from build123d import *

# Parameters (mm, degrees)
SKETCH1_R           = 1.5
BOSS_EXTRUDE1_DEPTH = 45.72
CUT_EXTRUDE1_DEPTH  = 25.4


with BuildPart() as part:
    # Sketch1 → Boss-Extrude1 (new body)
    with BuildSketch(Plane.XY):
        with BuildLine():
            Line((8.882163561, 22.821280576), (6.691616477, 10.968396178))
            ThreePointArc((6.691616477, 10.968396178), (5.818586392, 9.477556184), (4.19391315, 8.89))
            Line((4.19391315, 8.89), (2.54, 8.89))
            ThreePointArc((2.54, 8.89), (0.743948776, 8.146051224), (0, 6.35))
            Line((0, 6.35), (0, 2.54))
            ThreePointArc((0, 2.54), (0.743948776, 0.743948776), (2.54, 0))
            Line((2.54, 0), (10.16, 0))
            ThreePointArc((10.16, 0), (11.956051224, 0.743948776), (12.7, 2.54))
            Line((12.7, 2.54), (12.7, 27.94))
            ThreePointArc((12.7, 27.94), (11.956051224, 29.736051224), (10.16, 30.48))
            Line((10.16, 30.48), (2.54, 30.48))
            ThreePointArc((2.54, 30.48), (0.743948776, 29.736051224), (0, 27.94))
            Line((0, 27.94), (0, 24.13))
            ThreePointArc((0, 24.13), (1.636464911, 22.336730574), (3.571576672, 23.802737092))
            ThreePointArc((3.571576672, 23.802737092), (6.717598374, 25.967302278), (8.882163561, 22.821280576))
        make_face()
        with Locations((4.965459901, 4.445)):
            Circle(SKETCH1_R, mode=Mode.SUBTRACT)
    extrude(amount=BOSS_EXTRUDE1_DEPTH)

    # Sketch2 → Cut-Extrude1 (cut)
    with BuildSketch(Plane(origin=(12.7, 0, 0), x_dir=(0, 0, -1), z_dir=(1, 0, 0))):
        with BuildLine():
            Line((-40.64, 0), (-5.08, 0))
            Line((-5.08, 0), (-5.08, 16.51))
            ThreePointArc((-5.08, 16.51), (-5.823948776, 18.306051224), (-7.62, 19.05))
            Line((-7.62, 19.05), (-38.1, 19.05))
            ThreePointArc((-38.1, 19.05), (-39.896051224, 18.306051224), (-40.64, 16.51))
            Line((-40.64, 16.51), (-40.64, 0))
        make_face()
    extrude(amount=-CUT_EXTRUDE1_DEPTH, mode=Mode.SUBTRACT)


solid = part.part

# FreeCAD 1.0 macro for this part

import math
import FreeCAD as App
import Part
import Sketcher

V = App.Vector
Q = App.Units.Quantity

doc = App.newDocument("Part")
body = doc.addObject("PartDesign::Body", "Body")

# Sketch on XY plane
sketch1 = body.newObject("Sketcher::SketchObject", "Sketch")
sketch1.AttachmentSupport = (doc.getObject("XY_Plane"), [""])
sketch1.MapMode = "FlatFace"
sketch1.addGeometry([
    Part.LineSegment(V(8.9, 22.8, 0), V(6.7, 11, 0)),  # 0
    Part.ArcOfCircle(Part.Circle(V(4.2, 11.4, 0), V(0, 0, 1), 2.5), math.radians(-90), math.radians(-10)),  # 1
    Part.LineSegment(V(4.2, 8.9, 0), V(2.5, 8.9, 0)),  # 2
    Part.ArcOfCircle(Part.Circle(V(2.5, 6.3, 0), V(0, 0, 1), 2.5), math.radians(90), math.radians(180)),  # 3
    Part.LineSegment(V(0, 6.3, 0), V(0, 2.5, 0)),  # 4
    Part.ArcOfCircle(Part.Circle(V(2.5, 2.5, 0), V(0, 0, 1), 2.5), math.radians(-180), math.radians(-90)),  # 5
    Part.LineSegment(V(2.5, 0, 0), V(10.2, 0, 0)),  # 6
    Part.ArcOfCircle(Part.Circle(V(10.2, 2.5, 0), V(0, 0, 1), 2.5), math.radians(-90), math.radians(0)),  # 7
    Part.LineSegment(V(12.7, 2.5, 0), V(12.7, 27.9, 0)),  # 8
    Part.ArcOfCircle(Part.Circle(V(10.2, 27.9, 0), V(0, 0, 1), 2.5), math.radians(0), math.radians(90)),  # 9
    Part.LineSegment(V(10.2, 30.5, 0), V(2.5, 30.5, 0)),  # 10
    Part.ArcOfCircle(Part.Circle(V(2.5, 27.9, 0), V(0, 0, 1), 2.5), math.radians(90), math.radians(180)),  # 11
    Part.LineSegment(V(0, 27.9, 0), V(0, 24.1, 0)),  # 12
    Part.ArcOfCircle(Part.Circle(V(1.8, 24.1, 0), V(0, 0, 1), 1.8), math.radians(180), math.radians(350)),  # 13
    Part.ArcOfCircle(Part.Circle(V(6.2, 23.3, 0), V(0, 0, 1), 2.7), math.radians(-10), math.radians(170)),  # 14
    Part.Circle(V(5, 4.4, 0), V(0, 0, 1), 1.5),  # 15
], False)
sketch1.addConstraint([
    Sketcher.Constraint("Tangent", 0, 2, 1, 2),
    Sketcher.Constraint("Tangent", 1, 1, 2, 1),
    Sketcher.Constraint("Tangent", 2, 2, 3, 1),
    Sketcher.Constraint("Tangent", 3, 2, 4, 1),
    Sketcher.Constraint("Tangent", 4, 2, 5, 1),
    Sketcher.Constraint("Tangent", 5, 2, 6, 1),
    Sketcher.Constraint("Tangent", 6, 2, 7, 1),
    Sketcher.Constraint("Tangent", 7, 2, 8, 1),
    Sketcher.Constraint("Tangent", 8, 2, 9, 1),
    Sketcher.Constraint("Tangent", 9, 2, 10, 1),
    Sketcher.Constraint("Tangent", 10, 2, 11, 1),
    Sketcher.Constraint("Tangent", 11, 2, 12, 1),
    Sketcher.Constraint("Tangent", 12, 2, 13, 1),
    Sketcher.Constraint("Tangent", 13, 2, 14, 2),
    Sketcher.Constraint("Tangent", 14, 1, 0, 1),
    Sketcher.Constraint("Horizontal", 2),
    Sketcher.Constraint("Vertical", 4),
    Sketcher.Constraint("Horizontal", 6),
    Sketcher.Constraint("Vertical", 8),
    Sketcher.Constraint("Horizontal", 10),
    Sketcher.Constraint("Vertical", 12),
    Sketcher.Constraint("Equal", 1, 3),
    Sketcher.Constraint("Equal", 3, 5),
    Sketcher.Constraint("Equal", 5, 7),
    Sketcher.Constraint("Equal", 7, 9),
    Sketcher.Constraint("Equal", 9, 11),
    Sketcher.Constraint("PointOnObject", 3, 2, -2),
    Sketcher.Constraint("PointOnObject", 5, 2, -1),
    Sketcher.Constraint("PointOnObject", 11, 2, -2),
    Sketcher.Constraint("Equal", 4, 12),
    Sketcher.Constraint("Radius", 1, Q("0.1 in")),
    Sketcher.Constraint("DistanceY", 8, 1, 8, 2, Q("1 in")),
    Sketcher.Constraint("DistanceX", 6, 1, 6, 2, Q("0.3 in")),
    Sketcher.Constraint("DistanceY", 4, 2, 4, 1, Q("0.15 in")),
    Sketcher.Constraint("Diameter", 15, 3.0),
    Sketcher.Constraint("DistanceY", -1, 1, 15, 3, Q("0.175 in")),
    Sketcher.Constraint("Radius", 13, 1.800782),
    Sketcher.Constraint("Radius", 14, 2.700259),
    Sketcher.Constraint("DistanceX", 2, 2, 2, 1, 1.653913),
    Sketcher.Constraint("DistanceX", -1, 1, 14, 3, 6.22687),
    Sketcher.Constraint("DistanceX", -1, 1, 15, 3, 4.96546),
])
pad1 = body.newObject("PartDesign::Pad", "Pad")
pad1.Profile = sketch1
pad1.Length = Q("1.8 in")

# Sketch on YZ plane
sketch2 = body.newObject("Sketcher::SketchObject", "Sketch001")
sketch2.AttachmentSupport = (doc.getObject("YZ_Plane"), [""])
sketch2.MapMode = "FlatFace"
sketch2.AttachmentOffset = App.Placement(V(0, 0, 0.5 * 25.4), App.Rotation())
sketch2.addGeometry([
    Part.LineSegment(V(0, 40.6, 0), V(0, 5.1, 0)),  # 0
    Part.LineSegment(V(0, 5.1, 0), V(16.5, 5.1, 0)),  # 1
    Part.ArcOfCircle(Part.Circle(V(16.5, 7.6, 0), V(0, 0, 1), 2.5), math.radians(-90), math.radians(0)),  # 2
    Part.LineSegment(V(19.1, 7.6, 0), V(19.1, 38.1, 0)),  # 3
    Part.ArcOfCircle(Part.Circle(V(16.5, 38.1, 0), V(0, 0, 1), 2.5), math.radians(0), math.radians(90)),  # 4
    Part.LineSegment(V(16.5, 40.6, 0), V(0, 40.6, 0)),  # 5
], False)
sketch2.addConstraint([
    Sketcher.Constraint("Coincident", 0, 2, 1, 1),
    Sketcher.Constraint("Tangent", 1, 2, 2, 1),
    Sketcher.Constraint("Tangent", 2, 2, 3, 1),
    Sketcher.Constraint("Tangent", 3, 2, 4, 1),
    Sketcher.Constraint("Tangent", 4, 2, 5, 1),
    Sketcher.Constraint("Coincident", 5, 2, 0, 1),
    Sketcher.Constraint("Vertical", 0),
    Sketcher.Constraint("Horizontal", 1),
    Sketcher.Constraint("Vertical", 3),
    Sketcher.Constraint("Horizontal", 5),
    Sketcher.Constraint("Equal", 2, 4),
    Sketcher.Constraint("PointOnObject", 0, 2, -2),
    Sketcher.Constraint("Radius", 2, Q("0.1 in")),
    Sketcher.Constraint("DistanceY", 0, 2, 0, 1, Q("1.4 in")),
    Sketcher.Constraint("DistanceX", 1, 1, 1, 2, Q("0.65 in")),
    Sketcher.Constraint("DistanceY", -1, 1, 2, 3, Q("0.3 in")),
])
pocket1 = body.newObject("PartDesign::Pocket", "Pocket")
pocket1.Profile = sketch2
pocket1.Length = Q("1 in")

doc.recompute()
